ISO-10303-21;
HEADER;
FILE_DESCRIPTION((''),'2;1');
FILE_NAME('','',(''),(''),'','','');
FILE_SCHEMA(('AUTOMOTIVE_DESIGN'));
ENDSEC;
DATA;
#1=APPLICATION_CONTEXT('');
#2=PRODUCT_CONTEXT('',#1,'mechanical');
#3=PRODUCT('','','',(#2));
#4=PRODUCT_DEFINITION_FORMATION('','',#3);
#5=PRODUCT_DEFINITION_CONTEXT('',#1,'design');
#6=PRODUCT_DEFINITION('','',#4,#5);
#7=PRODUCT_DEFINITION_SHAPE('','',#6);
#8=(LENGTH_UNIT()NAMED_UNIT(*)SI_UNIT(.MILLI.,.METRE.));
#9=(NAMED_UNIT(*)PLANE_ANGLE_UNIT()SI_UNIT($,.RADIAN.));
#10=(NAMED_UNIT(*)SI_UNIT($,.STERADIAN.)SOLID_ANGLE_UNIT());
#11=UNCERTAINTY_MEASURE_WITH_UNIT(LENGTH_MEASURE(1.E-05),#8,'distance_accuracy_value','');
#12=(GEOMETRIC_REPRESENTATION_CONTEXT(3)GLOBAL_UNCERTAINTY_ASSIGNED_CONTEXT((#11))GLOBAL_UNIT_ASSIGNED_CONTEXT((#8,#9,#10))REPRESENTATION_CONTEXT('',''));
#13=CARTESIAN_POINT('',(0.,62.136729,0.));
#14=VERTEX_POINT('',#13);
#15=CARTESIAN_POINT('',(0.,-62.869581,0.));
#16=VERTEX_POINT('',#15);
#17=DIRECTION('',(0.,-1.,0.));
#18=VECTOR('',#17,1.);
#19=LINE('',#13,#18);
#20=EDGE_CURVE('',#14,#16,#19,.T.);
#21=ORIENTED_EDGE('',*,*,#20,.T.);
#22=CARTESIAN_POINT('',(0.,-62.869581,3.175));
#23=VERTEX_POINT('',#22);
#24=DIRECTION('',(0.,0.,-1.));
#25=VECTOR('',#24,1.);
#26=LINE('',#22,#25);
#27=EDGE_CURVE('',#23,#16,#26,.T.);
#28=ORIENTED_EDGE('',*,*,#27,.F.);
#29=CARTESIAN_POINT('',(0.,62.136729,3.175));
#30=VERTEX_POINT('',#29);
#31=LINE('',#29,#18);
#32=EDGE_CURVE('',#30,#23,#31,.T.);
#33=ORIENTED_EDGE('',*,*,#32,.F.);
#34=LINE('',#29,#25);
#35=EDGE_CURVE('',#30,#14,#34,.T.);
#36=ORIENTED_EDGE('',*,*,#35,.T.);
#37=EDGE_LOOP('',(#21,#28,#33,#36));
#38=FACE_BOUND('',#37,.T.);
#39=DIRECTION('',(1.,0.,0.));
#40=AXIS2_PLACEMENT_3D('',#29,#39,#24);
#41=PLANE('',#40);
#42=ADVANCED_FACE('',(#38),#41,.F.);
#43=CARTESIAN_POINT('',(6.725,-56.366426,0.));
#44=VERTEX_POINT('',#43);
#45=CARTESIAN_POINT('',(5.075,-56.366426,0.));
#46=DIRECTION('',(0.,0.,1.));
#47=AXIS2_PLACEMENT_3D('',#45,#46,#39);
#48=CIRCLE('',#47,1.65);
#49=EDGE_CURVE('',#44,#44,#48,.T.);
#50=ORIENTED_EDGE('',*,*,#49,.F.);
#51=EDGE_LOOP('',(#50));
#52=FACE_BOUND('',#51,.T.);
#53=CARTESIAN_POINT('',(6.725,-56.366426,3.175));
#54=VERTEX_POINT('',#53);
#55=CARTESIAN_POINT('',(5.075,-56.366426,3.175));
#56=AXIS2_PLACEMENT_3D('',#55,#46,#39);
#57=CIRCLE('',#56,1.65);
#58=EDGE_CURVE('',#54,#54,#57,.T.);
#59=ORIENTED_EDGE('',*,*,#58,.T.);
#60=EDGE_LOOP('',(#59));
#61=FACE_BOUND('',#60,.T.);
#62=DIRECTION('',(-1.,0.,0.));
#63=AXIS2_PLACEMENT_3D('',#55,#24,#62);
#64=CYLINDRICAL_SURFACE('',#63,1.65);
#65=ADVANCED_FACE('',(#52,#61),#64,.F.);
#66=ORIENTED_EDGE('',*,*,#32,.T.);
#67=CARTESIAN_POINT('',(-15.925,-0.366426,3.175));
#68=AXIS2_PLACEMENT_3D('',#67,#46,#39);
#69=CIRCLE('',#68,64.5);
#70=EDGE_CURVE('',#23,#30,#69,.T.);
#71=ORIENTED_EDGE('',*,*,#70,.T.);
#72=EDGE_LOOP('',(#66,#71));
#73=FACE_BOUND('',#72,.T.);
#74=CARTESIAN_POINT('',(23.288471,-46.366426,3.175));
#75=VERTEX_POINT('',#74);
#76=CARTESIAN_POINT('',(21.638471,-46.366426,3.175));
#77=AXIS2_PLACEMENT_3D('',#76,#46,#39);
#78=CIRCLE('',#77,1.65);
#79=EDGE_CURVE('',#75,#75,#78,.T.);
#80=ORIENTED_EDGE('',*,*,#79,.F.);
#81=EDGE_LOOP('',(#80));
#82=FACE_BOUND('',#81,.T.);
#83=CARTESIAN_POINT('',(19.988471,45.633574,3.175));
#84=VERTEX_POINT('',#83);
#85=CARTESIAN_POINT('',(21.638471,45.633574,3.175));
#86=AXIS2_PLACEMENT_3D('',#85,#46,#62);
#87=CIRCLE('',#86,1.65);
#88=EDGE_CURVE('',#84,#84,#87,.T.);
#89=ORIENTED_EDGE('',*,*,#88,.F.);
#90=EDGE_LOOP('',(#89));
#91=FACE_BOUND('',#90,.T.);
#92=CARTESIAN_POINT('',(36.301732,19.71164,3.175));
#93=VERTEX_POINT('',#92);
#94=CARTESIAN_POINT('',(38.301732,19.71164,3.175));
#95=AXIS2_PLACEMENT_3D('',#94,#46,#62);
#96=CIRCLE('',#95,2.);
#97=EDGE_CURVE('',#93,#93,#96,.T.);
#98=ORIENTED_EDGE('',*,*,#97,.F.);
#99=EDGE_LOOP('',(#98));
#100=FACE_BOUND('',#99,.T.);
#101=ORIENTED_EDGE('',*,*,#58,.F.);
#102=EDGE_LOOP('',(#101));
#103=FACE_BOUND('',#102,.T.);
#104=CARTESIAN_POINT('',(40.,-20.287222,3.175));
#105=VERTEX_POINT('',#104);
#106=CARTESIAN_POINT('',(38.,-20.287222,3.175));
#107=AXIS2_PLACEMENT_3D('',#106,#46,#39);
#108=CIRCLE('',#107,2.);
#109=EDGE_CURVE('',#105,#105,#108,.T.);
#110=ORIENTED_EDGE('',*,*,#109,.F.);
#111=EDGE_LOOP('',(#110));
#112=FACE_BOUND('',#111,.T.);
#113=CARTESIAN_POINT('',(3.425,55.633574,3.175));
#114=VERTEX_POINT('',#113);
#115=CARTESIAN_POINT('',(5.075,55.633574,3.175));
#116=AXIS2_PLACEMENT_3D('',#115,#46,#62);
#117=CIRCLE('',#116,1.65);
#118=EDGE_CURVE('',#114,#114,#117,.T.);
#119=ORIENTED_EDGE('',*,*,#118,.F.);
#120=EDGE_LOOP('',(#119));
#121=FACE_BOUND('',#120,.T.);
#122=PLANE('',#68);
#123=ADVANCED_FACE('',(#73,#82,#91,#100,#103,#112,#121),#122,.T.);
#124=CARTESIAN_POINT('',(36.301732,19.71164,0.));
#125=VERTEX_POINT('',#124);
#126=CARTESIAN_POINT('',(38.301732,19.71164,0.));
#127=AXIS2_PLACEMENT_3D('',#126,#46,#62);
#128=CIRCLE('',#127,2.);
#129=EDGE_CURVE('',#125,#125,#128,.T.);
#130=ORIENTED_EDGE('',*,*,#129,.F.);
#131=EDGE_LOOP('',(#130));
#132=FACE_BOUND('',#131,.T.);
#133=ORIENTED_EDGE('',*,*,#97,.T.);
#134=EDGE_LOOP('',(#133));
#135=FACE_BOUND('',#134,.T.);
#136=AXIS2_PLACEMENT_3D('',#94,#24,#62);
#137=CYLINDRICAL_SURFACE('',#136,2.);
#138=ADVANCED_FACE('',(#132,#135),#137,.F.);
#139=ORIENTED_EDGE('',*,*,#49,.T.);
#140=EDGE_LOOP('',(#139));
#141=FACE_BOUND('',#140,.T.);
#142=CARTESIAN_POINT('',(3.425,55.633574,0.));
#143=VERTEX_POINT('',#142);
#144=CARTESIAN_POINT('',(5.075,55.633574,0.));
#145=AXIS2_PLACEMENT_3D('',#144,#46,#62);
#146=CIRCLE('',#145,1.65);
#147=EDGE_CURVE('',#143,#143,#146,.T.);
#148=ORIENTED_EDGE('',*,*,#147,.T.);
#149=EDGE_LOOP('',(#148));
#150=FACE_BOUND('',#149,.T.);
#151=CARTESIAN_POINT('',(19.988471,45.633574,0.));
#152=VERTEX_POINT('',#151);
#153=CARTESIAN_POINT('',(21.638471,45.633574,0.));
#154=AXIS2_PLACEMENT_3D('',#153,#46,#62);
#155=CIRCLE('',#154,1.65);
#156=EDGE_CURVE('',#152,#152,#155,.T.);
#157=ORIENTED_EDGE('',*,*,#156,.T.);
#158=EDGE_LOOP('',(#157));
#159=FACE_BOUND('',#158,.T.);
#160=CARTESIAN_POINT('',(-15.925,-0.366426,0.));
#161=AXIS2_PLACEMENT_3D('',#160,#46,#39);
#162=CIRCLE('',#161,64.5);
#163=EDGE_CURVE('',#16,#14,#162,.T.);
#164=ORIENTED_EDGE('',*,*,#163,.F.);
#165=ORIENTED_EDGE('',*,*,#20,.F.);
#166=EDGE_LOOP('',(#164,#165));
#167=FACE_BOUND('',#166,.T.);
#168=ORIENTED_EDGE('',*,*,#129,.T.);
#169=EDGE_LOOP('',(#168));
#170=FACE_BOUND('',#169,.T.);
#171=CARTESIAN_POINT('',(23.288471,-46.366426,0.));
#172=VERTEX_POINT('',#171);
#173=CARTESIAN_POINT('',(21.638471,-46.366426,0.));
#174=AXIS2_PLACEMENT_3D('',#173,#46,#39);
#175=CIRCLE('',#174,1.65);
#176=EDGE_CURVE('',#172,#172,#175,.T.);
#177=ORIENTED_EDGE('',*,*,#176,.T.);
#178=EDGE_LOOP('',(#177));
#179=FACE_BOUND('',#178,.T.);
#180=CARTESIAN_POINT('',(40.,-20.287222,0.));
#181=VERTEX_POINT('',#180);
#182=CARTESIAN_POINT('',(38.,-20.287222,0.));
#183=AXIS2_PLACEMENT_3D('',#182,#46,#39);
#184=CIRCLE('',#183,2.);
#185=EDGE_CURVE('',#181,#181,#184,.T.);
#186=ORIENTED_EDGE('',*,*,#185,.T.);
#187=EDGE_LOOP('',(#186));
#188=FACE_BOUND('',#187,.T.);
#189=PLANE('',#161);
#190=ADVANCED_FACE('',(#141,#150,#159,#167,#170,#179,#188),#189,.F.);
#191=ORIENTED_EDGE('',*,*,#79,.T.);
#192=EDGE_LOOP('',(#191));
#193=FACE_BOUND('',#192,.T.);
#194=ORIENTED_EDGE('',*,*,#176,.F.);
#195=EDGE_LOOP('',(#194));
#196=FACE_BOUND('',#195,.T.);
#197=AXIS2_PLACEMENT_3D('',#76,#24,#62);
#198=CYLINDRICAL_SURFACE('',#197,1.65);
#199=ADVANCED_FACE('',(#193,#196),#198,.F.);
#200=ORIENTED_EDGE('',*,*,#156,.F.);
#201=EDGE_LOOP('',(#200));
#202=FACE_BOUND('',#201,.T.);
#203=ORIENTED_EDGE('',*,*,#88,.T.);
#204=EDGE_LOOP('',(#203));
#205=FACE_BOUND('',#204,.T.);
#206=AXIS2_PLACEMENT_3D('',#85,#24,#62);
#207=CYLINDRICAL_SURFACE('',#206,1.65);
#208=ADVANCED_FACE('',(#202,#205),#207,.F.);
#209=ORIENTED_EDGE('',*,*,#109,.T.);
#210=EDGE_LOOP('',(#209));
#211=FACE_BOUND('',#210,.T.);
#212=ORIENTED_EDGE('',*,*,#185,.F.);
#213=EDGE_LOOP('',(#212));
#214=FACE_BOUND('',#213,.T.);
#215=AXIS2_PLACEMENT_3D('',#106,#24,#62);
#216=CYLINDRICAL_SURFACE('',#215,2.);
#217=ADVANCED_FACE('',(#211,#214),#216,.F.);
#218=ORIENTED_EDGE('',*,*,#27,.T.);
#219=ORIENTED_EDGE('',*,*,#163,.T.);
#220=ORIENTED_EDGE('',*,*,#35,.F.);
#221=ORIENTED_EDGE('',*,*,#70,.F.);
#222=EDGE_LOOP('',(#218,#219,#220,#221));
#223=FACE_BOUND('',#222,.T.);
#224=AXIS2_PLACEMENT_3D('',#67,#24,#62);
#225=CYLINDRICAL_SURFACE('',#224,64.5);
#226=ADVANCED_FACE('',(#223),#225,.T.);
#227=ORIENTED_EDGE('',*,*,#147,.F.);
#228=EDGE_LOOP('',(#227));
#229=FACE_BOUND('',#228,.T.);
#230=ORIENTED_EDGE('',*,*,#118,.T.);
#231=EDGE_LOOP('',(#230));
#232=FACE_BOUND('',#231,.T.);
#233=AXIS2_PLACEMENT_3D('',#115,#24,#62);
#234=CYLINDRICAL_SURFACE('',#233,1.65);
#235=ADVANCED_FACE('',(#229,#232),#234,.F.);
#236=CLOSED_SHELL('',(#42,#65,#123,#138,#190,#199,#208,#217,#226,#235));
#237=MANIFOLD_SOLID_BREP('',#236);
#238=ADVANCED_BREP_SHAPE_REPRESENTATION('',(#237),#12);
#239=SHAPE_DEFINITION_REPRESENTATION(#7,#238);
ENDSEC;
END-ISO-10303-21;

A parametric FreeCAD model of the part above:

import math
import FreeCAD as App
import Part
import Sketcher
from FreeCAD import Vector
Q = App.Units.Quantity

doc = App.newDocument("Part")
params = doc.addObject("Spreadsheet::Sheet", "Params")
for row, (alias, value) in enumerate([
    ("sketch1_diameter", "4 mm"),
    ("sketch1_diameter2", "3.3 mm"),
    ("sketch1_radius", "64.5 mm"),
    ("pad1_length", "3.175 mm"),
], start=1):
    params.set(f"A{row}", alias)
    params.set(f"B{row}", "=" + value)
    params.setAlias(f"B{row}", alias)

body = doc.addObject("PartDesign::Body", "Body")

sketch1 = body.newObject("Sketcher::SketchObject", "Sketch")
sketch1.AttachmentSupport = (doc.getObject("XY_Plane"), [""])
sketch1.MapMode = "FlatFace"
sketch1.addGeometry([
    Part.LineSegment(Vector(0, 62.1, 0), Vector(0, -62.9, 0)),
    Part.ArcOfCircle(Part.Circle(Vector(-15.9, -0.4, 0), Vector(0, 0, 1), 64.5), math.radians(-76), math.radians(76)),
    Part.Circle(Vector(38.3, 19.7, 0), Vector(0, 0, 1), 2),
    Part.Circle(Vector(21.6, 45.6, 0), Vector(0, 0, 1), 1.6),
    Part.Circle(Vector(5.1, 55.6, 0), Vector(0, 0, 1), 1.6),
    Part.Circle(Vector(38, -20.3, 0), Vector(0, 0, 1), 2),
    Part.Circle(Vector(21.6, -46.4, 0), Vector(0, 0, 1), 1.6),
    Part.Circle(Vector(5.1, -56.4, 0), Vector(0, 0, 1), 1.6),
], False)
sketch1.addConstraint([
    Sketcher.Constraint("Coincident", 0, 1, 1, 2),
    Sketcher.Constraint("Coincident", 1, 1, 0, 2),
    Sketcher.Constraint("Vertical", 0),
    Sketcher.Constraint("Equal", 3, 4),
    Sketcher.Constraint("Equal", 2, 5),
    Sketcher.Constraint("Equal", 4, 6),
    Sketcher.Constraint("Equal", 6, 7),
    Sketcher.Constraint("PointOnObject", 0, 1, -2),
    Sketcher.Constraint("Vertical", 3, 3, 6, 3),
    Sketcher.Constraint("Vertical", 4, 3, 7, 3),
    Sketcher.Constraint("Diameter", 2, Q("4 mm")),
    Sketcher.Constraint("Diameter", 3, Q("3.3 mm")),
    Sketcher.Constraint("Radius", 1, Q("64.5 mm")),
    Sketcher.Constraint("DistanceX", -1, 1, 5, 3, Q("38 mm")),
    Sketcher.Constraint("DistanceY", 1, 3, 3, 3, Q("46 mm")),
    Sketcher.Constraint("DistanceY", 3, 3, 4, 3, Q("10 mm")),
    Sketcher.Constraint("DistanceX", 1, 3, 4, 3, Q("21 mm")),
    Sketcher.Constraint("DistanceY", 6, 3, 1, 3, Q("46 mm")),
    Sketcher.Constraint("DistanceY", 7, 3, 6, 3, Q("10 mm")),
    Sketcher.Constraint("DistanceX", 1, 3, -1, 1, Q("15.925 mm")),
    Sketcher.Constraint("DistanceX", -1, 1, 2, 3, Q("38.301732 mm")),
    Sketcher.Constraint("DistanceY", -1, 1, 2, 3, Q("19.71164 mm")),
    Sketcher.Constraint("DistanceX", -1, 1, 3, 3, Q("21.638471 mm")),
    Sketcher.Constraint("DistanceY", -1, 1, 0, 1, Q("62.136729 mm")),
    Sketcher.Constraint("DistanceY", 5, 3, 2, 3, Q("39.998862 mm")),
])
sketch1.setExpression("Constraints[10]", "Params.sketch1_diameter")
sketch1.setExpression("Constraints[11]", "Params.sketch1_diameter2")
sketch1.setExpression("Constraints[12]", "Params.sketch1_radius")
pad1 = body.newObject("PartDesign::Pad", "Pad")
pad1.Profile = sketch1
pad1.setExpression("Length", "Params.pad1_length")

doc.recompute()
